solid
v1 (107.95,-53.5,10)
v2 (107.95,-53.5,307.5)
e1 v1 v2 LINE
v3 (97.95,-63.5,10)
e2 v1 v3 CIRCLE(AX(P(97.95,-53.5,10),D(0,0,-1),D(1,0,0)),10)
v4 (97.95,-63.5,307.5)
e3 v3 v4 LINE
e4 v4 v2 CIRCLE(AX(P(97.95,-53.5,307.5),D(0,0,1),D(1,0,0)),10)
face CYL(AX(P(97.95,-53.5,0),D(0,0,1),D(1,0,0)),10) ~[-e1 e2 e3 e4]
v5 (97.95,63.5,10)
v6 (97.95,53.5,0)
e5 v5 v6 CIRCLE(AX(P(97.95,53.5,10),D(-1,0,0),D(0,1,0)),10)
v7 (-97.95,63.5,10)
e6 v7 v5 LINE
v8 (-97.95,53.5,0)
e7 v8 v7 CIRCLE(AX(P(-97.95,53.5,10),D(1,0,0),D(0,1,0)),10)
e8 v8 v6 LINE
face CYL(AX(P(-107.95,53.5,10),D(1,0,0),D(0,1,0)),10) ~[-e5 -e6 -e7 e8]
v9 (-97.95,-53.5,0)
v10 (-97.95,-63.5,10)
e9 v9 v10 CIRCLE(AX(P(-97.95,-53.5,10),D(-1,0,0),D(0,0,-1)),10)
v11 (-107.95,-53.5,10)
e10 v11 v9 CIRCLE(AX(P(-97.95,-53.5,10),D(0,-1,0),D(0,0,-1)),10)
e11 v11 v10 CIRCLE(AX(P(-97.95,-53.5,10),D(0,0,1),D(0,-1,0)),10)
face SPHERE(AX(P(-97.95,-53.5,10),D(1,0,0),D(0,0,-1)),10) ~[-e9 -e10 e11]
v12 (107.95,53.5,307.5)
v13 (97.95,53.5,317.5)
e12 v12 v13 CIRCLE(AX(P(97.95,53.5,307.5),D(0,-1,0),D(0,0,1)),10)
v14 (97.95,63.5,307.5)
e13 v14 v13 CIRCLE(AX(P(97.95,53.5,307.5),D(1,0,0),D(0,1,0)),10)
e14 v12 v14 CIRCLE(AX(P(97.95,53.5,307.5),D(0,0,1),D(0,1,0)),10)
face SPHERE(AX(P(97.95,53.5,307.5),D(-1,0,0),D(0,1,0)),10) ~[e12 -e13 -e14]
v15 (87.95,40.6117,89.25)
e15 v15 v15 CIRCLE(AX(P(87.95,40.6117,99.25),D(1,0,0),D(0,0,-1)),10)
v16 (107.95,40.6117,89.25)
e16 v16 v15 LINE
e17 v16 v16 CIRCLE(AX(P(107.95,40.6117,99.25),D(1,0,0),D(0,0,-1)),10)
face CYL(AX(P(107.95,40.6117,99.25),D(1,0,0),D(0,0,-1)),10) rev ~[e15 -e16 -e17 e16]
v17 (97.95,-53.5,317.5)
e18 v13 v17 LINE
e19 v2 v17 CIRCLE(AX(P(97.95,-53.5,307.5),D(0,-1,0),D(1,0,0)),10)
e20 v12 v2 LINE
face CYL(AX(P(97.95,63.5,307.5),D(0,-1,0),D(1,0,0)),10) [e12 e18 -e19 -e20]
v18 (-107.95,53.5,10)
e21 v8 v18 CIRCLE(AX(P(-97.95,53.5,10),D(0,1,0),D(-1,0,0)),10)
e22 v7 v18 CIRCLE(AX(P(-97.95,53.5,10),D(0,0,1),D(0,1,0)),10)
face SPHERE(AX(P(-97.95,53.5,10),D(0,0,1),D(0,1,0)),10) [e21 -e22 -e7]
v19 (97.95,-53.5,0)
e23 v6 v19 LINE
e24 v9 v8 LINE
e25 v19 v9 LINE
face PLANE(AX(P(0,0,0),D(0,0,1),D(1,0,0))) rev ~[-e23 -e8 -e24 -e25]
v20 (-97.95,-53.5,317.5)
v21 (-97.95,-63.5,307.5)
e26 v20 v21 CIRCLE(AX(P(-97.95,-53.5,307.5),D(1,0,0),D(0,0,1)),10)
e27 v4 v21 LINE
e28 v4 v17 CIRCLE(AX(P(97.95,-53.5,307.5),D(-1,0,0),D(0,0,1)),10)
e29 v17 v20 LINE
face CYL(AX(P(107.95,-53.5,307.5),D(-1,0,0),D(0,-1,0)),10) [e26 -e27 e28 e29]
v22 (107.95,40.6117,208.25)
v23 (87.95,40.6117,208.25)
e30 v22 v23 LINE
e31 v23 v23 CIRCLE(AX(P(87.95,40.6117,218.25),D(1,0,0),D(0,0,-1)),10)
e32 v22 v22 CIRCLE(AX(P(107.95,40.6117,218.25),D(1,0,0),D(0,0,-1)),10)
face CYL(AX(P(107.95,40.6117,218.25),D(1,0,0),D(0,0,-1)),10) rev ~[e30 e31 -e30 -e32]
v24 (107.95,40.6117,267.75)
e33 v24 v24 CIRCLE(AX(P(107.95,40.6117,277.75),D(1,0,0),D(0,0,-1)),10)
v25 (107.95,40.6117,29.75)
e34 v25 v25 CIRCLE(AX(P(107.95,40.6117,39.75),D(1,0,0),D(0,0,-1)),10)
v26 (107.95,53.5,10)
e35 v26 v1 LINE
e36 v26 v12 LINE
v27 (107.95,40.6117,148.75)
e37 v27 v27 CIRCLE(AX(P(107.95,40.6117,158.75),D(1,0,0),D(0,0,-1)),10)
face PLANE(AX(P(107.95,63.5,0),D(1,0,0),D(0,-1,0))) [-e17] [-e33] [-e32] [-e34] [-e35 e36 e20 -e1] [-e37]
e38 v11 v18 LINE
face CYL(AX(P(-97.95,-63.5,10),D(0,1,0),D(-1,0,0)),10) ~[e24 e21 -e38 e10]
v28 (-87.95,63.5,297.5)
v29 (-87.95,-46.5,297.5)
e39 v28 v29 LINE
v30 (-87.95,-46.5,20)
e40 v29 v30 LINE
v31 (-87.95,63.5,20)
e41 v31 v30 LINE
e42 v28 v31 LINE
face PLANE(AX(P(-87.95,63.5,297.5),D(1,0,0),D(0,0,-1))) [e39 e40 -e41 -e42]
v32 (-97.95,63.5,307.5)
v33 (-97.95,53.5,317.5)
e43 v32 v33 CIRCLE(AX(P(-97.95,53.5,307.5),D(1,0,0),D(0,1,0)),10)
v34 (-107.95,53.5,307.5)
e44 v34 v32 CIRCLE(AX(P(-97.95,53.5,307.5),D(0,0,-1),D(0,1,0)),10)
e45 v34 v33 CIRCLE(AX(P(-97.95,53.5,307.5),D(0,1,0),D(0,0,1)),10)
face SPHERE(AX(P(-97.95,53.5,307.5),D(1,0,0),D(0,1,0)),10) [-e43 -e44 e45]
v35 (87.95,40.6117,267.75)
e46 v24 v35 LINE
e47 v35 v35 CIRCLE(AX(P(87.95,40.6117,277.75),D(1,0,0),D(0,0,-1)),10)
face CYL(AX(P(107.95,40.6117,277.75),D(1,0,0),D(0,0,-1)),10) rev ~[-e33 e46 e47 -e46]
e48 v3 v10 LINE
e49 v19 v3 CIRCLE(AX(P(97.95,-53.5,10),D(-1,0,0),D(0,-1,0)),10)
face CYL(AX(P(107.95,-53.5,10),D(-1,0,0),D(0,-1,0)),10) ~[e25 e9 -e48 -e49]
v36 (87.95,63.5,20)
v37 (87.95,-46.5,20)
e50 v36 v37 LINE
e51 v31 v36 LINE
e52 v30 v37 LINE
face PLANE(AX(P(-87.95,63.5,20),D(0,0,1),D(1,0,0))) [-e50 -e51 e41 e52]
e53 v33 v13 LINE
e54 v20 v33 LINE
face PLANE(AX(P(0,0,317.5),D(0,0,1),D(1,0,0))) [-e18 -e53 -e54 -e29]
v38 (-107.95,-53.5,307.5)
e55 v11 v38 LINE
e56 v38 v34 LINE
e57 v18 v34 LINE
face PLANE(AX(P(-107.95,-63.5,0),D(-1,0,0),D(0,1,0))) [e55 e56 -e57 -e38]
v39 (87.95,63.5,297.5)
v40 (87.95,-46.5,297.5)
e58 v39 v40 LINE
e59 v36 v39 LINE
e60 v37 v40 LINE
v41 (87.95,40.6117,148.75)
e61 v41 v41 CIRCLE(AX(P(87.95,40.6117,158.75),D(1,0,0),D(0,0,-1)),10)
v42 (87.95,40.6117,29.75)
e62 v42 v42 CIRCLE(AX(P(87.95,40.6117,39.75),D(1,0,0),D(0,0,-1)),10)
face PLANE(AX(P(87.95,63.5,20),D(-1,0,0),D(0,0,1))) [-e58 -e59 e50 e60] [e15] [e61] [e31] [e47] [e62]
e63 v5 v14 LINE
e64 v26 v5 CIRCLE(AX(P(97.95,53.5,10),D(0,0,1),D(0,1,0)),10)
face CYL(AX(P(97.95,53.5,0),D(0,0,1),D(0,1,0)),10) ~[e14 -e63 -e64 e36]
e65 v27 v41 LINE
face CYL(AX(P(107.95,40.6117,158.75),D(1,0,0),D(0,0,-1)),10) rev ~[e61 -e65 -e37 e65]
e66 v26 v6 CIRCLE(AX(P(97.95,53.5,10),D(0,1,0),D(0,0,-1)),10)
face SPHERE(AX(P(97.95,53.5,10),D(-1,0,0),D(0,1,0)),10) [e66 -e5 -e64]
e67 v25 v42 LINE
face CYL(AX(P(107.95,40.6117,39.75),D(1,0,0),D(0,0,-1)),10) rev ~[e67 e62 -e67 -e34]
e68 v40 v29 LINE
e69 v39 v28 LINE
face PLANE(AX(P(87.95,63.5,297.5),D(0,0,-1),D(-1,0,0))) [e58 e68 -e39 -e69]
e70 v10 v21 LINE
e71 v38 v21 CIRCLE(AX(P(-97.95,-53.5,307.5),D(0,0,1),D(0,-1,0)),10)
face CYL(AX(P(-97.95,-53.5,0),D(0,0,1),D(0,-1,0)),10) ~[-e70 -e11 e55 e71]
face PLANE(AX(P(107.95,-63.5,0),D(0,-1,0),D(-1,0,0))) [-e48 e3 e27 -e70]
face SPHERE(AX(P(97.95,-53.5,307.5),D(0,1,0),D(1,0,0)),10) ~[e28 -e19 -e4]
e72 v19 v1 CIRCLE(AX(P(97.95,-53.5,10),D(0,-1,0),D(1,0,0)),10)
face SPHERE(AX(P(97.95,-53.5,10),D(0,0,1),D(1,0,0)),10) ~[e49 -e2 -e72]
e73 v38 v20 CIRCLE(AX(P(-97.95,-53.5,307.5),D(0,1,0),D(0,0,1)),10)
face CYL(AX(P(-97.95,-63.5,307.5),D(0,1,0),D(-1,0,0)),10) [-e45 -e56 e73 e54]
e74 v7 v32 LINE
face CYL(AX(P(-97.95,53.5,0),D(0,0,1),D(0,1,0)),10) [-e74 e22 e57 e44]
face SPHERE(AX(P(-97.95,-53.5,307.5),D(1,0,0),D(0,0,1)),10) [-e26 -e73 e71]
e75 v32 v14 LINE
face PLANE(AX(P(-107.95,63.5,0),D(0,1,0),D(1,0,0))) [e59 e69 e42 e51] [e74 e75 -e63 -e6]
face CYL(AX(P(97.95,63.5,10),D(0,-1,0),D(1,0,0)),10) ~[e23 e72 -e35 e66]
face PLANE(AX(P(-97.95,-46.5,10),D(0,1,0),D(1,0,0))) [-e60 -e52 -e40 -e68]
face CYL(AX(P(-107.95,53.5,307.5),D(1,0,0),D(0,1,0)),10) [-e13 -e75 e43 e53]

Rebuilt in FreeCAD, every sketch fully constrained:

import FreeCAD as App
import Part
import Sketcher
Q = App.Units.Quantity


def add_polygon(sketch, points):
    """Adds a closed chain of lines whose ends are joined by coincident constraints."""
    first, n = sketch.GeometryCount, len(points)
    for a, b in zip(points, points[1:] + points[:1]):
        sketch.addGeometry(Part.LineSegment(App.Vector(*a, 0), App.Vector(*b, 0)), False)
    for i in range(n):
        sketch.addConstraint(Sketcher.Constraint("Coincident", first + i, 2, first + (i + 1) % n, 1))

doc = App.newDocument("Part")
body = doc.addObject("PartDesign::Body", "Body")

sketch1 = doc.addObject("Sketcher::SketchObject", "Sketch")
body.addObject(sketch1)
sketch1.AttachmentSupport = (doc.XY_Plane, [""])
sketch1.MapMode = "FlatFace"
add_polygon(sketch1, [(107.95, 63.5), (-107.95, 63.5), (-107.95, -63.5), (107.95, -63.5)])
sketch1.addConstraint(Sketcher.Constraint("Horizontal", 0))
sketch1.addConstraint(Sketcher.Constraint("Vertical", 1))
sketch1.addConstraint(Sketcher.Constraint("Horizontal", 2))
sketch1.addConstraint(Sketcher.Constraint("Vertical", 3))
sketch1.addConstraint(Sketcher.Constraint("Symmetric", 0, 2, 2, 2, -1, 1))
sketch1.addConstraint(Sketcher.Constraint("DistanceY", 1, 2, 1, 1, Q("5 in")))
sketch1.addConstraint(Sketcher.Constraint("DistanceX", 0, 2, 0, 1, Q("8.5 in")))
pad1 = doc.addObject("PartDesign::Pad", "Pad")
body.addObject(pad1)
pad1.Profile = sketch1
pad1.Length = Q("12.5 in")
doc.recompute()

fillet = doc.addObject("PartDesign::Fillet", "Fillet")
body.addObject(fillet)
fillet.Base = (pad1, ["Edge1"])
fillet.UseAllEdges = True
fillet.Radius = Q("0.3937008 in")

sketch2 = doc.addObject("Sketcher::SketchObject", "Sketch001")
body.addObject(sketch2)
sketch2.AttachmentSupport = (doc.XZ_Plane, [""])
sketch2.MapMode = "FlatFace"
sketch2.AttachmentOffset = App.Placement(App.Vector(0, 0, -2.5 * 25.4), App.Rotation())
add_polygon(sketch2, [(87.95, 20), (-87.95, 20), (-87.95, 297.5), (87.95, 297.5)])
sketch2.addConstraint(Sketcher.Constraint("Horizontal", 0))
sketch2.addConstraint(Sketcher.Constraint("Vertical", 1))
sketch2.addConstraint(Sketcher.Constraint("Horizontal", 2))
sketch2.addConstraint(Sketcher.Constraint("Vertical", 3))
sketch2.addConstraint(Sketcher.Constraint("DistanceX", 0, 2, 0, 1, Q("6.9252 in")))
sketch2.addConstraint(Sketcher.Constraint("DistanceY", 1, 1, 1, 2, Q("10.9252 in")))
sketch2.addConstraint(Sketcher.Constraint("DistanceX", 0, 2, -1, 1, Q("3.4626 in")))
sketch2.addConstraint(Sketcher.Constraint("DistanceY", -1, 1, 0, 2, Q("0.7874 in")))
pocket1 = doc.addObject("PartDesign::Pocket", "Pocket")
body.addObject(pocket1)
pocket1.Profile = sketch2
pocket1.Length = Q("4.3307087 in")
pocket1.Reversed = True

sketch3 = doc.addObject("Sketcher::SketchObject", "Sketch002")
body.addObject(sketch3)
sketch3.AttachmentSupport = (doc.YZ_Plane, [""])
sketch3.MapMode = "FlatFace"
sketch3.AttachmentOffset = App.Placement(App.Vector(0, 0, 4.25 * 25.4), App.Rotation())
sketch3.addGeometry(Part.Circle(App.Vector(40.6117, 277.75, 0), App.Vector(0, 0, 1), 10), False)
sketch3.addGeometry(Part.Circle(App.Vector(40.6117, 218.25, 0), App.Vector(0, 0, 1), 10), False)
sketch3.addGeometry(Part.Circle(App.Vector(40.6117, 158.75, 0), App.Vector(0, 0, 1), 10), False)
sketch3.addGeometry(Part.Circle(App.Vector(40.6117, 99.25, 0), App.Vector(0, 0, 1), 10), False)
sketch3.addGeometry(Part.Circle(App.Vector(40.6117, 39.75, 0), App.Vector(0, 0, 1), 10), False)
sketch3.addConstraint(Sketcher.Constraint("Equal", 0, 1))
sketch3.addConstraint(Sketcher.Constraint("Equal", 1, 2))
sketch3.addConstraint(Sketcher.Constraint("Equal", 2, 3))
sketch3.addConstraint(Sketcher.Constraint("Equal", 3, 4))
sketch3.addConstraint(Sketcher.Constraint("Vertical", 0, 3, 1, 3))
sketch3.addConstraint(Sketcher.Constraint("Vertical", 1, 3, 2, 3))
sketch3.addConstraint(Sketcher.Constraint("Vertical", 2, 3, 3, 3))
sketch3.addConstraint(Sketcher.Constraint("Vertical", 3, 3, 4, 3))
sketch3.addConstraint(Sketcher.Constraint("Diameter", 0, Q("0.7874 in")))
sketch3.addConstraint(Sketcher.Constraint("DistanceY", -1, 1, 2, 3, Q("6.25 in")))
sketch3.addConstraint(Sketcher.Constraint("DistanceY", 1, 3, 0, 3, 59.5))
sketch3.addConstraint(Sketcher.Constraint("DistanceY", 2, 3, 1, 3, 59.5))
sketch3.addConstraint(Sketcher.Constraint("DistanceY", 3, 3, 2, 3, 59.5))
sketch3.addConstraint(Sketcher.Constraint("DistanceY", 4, 3, 3, 3, 59.5))
sketch3.addConstraint(Sketcher.Constraint("DistanceX", -1, 1, 0, 3, 40.6117))
pocket2 = doc.addObject("PartDesign::Pocket", "Pocket001")
body.addObject(pocket2)
pocket2.Profile = sketch3
pocket2.Length = 59.5

doc.recompute()
